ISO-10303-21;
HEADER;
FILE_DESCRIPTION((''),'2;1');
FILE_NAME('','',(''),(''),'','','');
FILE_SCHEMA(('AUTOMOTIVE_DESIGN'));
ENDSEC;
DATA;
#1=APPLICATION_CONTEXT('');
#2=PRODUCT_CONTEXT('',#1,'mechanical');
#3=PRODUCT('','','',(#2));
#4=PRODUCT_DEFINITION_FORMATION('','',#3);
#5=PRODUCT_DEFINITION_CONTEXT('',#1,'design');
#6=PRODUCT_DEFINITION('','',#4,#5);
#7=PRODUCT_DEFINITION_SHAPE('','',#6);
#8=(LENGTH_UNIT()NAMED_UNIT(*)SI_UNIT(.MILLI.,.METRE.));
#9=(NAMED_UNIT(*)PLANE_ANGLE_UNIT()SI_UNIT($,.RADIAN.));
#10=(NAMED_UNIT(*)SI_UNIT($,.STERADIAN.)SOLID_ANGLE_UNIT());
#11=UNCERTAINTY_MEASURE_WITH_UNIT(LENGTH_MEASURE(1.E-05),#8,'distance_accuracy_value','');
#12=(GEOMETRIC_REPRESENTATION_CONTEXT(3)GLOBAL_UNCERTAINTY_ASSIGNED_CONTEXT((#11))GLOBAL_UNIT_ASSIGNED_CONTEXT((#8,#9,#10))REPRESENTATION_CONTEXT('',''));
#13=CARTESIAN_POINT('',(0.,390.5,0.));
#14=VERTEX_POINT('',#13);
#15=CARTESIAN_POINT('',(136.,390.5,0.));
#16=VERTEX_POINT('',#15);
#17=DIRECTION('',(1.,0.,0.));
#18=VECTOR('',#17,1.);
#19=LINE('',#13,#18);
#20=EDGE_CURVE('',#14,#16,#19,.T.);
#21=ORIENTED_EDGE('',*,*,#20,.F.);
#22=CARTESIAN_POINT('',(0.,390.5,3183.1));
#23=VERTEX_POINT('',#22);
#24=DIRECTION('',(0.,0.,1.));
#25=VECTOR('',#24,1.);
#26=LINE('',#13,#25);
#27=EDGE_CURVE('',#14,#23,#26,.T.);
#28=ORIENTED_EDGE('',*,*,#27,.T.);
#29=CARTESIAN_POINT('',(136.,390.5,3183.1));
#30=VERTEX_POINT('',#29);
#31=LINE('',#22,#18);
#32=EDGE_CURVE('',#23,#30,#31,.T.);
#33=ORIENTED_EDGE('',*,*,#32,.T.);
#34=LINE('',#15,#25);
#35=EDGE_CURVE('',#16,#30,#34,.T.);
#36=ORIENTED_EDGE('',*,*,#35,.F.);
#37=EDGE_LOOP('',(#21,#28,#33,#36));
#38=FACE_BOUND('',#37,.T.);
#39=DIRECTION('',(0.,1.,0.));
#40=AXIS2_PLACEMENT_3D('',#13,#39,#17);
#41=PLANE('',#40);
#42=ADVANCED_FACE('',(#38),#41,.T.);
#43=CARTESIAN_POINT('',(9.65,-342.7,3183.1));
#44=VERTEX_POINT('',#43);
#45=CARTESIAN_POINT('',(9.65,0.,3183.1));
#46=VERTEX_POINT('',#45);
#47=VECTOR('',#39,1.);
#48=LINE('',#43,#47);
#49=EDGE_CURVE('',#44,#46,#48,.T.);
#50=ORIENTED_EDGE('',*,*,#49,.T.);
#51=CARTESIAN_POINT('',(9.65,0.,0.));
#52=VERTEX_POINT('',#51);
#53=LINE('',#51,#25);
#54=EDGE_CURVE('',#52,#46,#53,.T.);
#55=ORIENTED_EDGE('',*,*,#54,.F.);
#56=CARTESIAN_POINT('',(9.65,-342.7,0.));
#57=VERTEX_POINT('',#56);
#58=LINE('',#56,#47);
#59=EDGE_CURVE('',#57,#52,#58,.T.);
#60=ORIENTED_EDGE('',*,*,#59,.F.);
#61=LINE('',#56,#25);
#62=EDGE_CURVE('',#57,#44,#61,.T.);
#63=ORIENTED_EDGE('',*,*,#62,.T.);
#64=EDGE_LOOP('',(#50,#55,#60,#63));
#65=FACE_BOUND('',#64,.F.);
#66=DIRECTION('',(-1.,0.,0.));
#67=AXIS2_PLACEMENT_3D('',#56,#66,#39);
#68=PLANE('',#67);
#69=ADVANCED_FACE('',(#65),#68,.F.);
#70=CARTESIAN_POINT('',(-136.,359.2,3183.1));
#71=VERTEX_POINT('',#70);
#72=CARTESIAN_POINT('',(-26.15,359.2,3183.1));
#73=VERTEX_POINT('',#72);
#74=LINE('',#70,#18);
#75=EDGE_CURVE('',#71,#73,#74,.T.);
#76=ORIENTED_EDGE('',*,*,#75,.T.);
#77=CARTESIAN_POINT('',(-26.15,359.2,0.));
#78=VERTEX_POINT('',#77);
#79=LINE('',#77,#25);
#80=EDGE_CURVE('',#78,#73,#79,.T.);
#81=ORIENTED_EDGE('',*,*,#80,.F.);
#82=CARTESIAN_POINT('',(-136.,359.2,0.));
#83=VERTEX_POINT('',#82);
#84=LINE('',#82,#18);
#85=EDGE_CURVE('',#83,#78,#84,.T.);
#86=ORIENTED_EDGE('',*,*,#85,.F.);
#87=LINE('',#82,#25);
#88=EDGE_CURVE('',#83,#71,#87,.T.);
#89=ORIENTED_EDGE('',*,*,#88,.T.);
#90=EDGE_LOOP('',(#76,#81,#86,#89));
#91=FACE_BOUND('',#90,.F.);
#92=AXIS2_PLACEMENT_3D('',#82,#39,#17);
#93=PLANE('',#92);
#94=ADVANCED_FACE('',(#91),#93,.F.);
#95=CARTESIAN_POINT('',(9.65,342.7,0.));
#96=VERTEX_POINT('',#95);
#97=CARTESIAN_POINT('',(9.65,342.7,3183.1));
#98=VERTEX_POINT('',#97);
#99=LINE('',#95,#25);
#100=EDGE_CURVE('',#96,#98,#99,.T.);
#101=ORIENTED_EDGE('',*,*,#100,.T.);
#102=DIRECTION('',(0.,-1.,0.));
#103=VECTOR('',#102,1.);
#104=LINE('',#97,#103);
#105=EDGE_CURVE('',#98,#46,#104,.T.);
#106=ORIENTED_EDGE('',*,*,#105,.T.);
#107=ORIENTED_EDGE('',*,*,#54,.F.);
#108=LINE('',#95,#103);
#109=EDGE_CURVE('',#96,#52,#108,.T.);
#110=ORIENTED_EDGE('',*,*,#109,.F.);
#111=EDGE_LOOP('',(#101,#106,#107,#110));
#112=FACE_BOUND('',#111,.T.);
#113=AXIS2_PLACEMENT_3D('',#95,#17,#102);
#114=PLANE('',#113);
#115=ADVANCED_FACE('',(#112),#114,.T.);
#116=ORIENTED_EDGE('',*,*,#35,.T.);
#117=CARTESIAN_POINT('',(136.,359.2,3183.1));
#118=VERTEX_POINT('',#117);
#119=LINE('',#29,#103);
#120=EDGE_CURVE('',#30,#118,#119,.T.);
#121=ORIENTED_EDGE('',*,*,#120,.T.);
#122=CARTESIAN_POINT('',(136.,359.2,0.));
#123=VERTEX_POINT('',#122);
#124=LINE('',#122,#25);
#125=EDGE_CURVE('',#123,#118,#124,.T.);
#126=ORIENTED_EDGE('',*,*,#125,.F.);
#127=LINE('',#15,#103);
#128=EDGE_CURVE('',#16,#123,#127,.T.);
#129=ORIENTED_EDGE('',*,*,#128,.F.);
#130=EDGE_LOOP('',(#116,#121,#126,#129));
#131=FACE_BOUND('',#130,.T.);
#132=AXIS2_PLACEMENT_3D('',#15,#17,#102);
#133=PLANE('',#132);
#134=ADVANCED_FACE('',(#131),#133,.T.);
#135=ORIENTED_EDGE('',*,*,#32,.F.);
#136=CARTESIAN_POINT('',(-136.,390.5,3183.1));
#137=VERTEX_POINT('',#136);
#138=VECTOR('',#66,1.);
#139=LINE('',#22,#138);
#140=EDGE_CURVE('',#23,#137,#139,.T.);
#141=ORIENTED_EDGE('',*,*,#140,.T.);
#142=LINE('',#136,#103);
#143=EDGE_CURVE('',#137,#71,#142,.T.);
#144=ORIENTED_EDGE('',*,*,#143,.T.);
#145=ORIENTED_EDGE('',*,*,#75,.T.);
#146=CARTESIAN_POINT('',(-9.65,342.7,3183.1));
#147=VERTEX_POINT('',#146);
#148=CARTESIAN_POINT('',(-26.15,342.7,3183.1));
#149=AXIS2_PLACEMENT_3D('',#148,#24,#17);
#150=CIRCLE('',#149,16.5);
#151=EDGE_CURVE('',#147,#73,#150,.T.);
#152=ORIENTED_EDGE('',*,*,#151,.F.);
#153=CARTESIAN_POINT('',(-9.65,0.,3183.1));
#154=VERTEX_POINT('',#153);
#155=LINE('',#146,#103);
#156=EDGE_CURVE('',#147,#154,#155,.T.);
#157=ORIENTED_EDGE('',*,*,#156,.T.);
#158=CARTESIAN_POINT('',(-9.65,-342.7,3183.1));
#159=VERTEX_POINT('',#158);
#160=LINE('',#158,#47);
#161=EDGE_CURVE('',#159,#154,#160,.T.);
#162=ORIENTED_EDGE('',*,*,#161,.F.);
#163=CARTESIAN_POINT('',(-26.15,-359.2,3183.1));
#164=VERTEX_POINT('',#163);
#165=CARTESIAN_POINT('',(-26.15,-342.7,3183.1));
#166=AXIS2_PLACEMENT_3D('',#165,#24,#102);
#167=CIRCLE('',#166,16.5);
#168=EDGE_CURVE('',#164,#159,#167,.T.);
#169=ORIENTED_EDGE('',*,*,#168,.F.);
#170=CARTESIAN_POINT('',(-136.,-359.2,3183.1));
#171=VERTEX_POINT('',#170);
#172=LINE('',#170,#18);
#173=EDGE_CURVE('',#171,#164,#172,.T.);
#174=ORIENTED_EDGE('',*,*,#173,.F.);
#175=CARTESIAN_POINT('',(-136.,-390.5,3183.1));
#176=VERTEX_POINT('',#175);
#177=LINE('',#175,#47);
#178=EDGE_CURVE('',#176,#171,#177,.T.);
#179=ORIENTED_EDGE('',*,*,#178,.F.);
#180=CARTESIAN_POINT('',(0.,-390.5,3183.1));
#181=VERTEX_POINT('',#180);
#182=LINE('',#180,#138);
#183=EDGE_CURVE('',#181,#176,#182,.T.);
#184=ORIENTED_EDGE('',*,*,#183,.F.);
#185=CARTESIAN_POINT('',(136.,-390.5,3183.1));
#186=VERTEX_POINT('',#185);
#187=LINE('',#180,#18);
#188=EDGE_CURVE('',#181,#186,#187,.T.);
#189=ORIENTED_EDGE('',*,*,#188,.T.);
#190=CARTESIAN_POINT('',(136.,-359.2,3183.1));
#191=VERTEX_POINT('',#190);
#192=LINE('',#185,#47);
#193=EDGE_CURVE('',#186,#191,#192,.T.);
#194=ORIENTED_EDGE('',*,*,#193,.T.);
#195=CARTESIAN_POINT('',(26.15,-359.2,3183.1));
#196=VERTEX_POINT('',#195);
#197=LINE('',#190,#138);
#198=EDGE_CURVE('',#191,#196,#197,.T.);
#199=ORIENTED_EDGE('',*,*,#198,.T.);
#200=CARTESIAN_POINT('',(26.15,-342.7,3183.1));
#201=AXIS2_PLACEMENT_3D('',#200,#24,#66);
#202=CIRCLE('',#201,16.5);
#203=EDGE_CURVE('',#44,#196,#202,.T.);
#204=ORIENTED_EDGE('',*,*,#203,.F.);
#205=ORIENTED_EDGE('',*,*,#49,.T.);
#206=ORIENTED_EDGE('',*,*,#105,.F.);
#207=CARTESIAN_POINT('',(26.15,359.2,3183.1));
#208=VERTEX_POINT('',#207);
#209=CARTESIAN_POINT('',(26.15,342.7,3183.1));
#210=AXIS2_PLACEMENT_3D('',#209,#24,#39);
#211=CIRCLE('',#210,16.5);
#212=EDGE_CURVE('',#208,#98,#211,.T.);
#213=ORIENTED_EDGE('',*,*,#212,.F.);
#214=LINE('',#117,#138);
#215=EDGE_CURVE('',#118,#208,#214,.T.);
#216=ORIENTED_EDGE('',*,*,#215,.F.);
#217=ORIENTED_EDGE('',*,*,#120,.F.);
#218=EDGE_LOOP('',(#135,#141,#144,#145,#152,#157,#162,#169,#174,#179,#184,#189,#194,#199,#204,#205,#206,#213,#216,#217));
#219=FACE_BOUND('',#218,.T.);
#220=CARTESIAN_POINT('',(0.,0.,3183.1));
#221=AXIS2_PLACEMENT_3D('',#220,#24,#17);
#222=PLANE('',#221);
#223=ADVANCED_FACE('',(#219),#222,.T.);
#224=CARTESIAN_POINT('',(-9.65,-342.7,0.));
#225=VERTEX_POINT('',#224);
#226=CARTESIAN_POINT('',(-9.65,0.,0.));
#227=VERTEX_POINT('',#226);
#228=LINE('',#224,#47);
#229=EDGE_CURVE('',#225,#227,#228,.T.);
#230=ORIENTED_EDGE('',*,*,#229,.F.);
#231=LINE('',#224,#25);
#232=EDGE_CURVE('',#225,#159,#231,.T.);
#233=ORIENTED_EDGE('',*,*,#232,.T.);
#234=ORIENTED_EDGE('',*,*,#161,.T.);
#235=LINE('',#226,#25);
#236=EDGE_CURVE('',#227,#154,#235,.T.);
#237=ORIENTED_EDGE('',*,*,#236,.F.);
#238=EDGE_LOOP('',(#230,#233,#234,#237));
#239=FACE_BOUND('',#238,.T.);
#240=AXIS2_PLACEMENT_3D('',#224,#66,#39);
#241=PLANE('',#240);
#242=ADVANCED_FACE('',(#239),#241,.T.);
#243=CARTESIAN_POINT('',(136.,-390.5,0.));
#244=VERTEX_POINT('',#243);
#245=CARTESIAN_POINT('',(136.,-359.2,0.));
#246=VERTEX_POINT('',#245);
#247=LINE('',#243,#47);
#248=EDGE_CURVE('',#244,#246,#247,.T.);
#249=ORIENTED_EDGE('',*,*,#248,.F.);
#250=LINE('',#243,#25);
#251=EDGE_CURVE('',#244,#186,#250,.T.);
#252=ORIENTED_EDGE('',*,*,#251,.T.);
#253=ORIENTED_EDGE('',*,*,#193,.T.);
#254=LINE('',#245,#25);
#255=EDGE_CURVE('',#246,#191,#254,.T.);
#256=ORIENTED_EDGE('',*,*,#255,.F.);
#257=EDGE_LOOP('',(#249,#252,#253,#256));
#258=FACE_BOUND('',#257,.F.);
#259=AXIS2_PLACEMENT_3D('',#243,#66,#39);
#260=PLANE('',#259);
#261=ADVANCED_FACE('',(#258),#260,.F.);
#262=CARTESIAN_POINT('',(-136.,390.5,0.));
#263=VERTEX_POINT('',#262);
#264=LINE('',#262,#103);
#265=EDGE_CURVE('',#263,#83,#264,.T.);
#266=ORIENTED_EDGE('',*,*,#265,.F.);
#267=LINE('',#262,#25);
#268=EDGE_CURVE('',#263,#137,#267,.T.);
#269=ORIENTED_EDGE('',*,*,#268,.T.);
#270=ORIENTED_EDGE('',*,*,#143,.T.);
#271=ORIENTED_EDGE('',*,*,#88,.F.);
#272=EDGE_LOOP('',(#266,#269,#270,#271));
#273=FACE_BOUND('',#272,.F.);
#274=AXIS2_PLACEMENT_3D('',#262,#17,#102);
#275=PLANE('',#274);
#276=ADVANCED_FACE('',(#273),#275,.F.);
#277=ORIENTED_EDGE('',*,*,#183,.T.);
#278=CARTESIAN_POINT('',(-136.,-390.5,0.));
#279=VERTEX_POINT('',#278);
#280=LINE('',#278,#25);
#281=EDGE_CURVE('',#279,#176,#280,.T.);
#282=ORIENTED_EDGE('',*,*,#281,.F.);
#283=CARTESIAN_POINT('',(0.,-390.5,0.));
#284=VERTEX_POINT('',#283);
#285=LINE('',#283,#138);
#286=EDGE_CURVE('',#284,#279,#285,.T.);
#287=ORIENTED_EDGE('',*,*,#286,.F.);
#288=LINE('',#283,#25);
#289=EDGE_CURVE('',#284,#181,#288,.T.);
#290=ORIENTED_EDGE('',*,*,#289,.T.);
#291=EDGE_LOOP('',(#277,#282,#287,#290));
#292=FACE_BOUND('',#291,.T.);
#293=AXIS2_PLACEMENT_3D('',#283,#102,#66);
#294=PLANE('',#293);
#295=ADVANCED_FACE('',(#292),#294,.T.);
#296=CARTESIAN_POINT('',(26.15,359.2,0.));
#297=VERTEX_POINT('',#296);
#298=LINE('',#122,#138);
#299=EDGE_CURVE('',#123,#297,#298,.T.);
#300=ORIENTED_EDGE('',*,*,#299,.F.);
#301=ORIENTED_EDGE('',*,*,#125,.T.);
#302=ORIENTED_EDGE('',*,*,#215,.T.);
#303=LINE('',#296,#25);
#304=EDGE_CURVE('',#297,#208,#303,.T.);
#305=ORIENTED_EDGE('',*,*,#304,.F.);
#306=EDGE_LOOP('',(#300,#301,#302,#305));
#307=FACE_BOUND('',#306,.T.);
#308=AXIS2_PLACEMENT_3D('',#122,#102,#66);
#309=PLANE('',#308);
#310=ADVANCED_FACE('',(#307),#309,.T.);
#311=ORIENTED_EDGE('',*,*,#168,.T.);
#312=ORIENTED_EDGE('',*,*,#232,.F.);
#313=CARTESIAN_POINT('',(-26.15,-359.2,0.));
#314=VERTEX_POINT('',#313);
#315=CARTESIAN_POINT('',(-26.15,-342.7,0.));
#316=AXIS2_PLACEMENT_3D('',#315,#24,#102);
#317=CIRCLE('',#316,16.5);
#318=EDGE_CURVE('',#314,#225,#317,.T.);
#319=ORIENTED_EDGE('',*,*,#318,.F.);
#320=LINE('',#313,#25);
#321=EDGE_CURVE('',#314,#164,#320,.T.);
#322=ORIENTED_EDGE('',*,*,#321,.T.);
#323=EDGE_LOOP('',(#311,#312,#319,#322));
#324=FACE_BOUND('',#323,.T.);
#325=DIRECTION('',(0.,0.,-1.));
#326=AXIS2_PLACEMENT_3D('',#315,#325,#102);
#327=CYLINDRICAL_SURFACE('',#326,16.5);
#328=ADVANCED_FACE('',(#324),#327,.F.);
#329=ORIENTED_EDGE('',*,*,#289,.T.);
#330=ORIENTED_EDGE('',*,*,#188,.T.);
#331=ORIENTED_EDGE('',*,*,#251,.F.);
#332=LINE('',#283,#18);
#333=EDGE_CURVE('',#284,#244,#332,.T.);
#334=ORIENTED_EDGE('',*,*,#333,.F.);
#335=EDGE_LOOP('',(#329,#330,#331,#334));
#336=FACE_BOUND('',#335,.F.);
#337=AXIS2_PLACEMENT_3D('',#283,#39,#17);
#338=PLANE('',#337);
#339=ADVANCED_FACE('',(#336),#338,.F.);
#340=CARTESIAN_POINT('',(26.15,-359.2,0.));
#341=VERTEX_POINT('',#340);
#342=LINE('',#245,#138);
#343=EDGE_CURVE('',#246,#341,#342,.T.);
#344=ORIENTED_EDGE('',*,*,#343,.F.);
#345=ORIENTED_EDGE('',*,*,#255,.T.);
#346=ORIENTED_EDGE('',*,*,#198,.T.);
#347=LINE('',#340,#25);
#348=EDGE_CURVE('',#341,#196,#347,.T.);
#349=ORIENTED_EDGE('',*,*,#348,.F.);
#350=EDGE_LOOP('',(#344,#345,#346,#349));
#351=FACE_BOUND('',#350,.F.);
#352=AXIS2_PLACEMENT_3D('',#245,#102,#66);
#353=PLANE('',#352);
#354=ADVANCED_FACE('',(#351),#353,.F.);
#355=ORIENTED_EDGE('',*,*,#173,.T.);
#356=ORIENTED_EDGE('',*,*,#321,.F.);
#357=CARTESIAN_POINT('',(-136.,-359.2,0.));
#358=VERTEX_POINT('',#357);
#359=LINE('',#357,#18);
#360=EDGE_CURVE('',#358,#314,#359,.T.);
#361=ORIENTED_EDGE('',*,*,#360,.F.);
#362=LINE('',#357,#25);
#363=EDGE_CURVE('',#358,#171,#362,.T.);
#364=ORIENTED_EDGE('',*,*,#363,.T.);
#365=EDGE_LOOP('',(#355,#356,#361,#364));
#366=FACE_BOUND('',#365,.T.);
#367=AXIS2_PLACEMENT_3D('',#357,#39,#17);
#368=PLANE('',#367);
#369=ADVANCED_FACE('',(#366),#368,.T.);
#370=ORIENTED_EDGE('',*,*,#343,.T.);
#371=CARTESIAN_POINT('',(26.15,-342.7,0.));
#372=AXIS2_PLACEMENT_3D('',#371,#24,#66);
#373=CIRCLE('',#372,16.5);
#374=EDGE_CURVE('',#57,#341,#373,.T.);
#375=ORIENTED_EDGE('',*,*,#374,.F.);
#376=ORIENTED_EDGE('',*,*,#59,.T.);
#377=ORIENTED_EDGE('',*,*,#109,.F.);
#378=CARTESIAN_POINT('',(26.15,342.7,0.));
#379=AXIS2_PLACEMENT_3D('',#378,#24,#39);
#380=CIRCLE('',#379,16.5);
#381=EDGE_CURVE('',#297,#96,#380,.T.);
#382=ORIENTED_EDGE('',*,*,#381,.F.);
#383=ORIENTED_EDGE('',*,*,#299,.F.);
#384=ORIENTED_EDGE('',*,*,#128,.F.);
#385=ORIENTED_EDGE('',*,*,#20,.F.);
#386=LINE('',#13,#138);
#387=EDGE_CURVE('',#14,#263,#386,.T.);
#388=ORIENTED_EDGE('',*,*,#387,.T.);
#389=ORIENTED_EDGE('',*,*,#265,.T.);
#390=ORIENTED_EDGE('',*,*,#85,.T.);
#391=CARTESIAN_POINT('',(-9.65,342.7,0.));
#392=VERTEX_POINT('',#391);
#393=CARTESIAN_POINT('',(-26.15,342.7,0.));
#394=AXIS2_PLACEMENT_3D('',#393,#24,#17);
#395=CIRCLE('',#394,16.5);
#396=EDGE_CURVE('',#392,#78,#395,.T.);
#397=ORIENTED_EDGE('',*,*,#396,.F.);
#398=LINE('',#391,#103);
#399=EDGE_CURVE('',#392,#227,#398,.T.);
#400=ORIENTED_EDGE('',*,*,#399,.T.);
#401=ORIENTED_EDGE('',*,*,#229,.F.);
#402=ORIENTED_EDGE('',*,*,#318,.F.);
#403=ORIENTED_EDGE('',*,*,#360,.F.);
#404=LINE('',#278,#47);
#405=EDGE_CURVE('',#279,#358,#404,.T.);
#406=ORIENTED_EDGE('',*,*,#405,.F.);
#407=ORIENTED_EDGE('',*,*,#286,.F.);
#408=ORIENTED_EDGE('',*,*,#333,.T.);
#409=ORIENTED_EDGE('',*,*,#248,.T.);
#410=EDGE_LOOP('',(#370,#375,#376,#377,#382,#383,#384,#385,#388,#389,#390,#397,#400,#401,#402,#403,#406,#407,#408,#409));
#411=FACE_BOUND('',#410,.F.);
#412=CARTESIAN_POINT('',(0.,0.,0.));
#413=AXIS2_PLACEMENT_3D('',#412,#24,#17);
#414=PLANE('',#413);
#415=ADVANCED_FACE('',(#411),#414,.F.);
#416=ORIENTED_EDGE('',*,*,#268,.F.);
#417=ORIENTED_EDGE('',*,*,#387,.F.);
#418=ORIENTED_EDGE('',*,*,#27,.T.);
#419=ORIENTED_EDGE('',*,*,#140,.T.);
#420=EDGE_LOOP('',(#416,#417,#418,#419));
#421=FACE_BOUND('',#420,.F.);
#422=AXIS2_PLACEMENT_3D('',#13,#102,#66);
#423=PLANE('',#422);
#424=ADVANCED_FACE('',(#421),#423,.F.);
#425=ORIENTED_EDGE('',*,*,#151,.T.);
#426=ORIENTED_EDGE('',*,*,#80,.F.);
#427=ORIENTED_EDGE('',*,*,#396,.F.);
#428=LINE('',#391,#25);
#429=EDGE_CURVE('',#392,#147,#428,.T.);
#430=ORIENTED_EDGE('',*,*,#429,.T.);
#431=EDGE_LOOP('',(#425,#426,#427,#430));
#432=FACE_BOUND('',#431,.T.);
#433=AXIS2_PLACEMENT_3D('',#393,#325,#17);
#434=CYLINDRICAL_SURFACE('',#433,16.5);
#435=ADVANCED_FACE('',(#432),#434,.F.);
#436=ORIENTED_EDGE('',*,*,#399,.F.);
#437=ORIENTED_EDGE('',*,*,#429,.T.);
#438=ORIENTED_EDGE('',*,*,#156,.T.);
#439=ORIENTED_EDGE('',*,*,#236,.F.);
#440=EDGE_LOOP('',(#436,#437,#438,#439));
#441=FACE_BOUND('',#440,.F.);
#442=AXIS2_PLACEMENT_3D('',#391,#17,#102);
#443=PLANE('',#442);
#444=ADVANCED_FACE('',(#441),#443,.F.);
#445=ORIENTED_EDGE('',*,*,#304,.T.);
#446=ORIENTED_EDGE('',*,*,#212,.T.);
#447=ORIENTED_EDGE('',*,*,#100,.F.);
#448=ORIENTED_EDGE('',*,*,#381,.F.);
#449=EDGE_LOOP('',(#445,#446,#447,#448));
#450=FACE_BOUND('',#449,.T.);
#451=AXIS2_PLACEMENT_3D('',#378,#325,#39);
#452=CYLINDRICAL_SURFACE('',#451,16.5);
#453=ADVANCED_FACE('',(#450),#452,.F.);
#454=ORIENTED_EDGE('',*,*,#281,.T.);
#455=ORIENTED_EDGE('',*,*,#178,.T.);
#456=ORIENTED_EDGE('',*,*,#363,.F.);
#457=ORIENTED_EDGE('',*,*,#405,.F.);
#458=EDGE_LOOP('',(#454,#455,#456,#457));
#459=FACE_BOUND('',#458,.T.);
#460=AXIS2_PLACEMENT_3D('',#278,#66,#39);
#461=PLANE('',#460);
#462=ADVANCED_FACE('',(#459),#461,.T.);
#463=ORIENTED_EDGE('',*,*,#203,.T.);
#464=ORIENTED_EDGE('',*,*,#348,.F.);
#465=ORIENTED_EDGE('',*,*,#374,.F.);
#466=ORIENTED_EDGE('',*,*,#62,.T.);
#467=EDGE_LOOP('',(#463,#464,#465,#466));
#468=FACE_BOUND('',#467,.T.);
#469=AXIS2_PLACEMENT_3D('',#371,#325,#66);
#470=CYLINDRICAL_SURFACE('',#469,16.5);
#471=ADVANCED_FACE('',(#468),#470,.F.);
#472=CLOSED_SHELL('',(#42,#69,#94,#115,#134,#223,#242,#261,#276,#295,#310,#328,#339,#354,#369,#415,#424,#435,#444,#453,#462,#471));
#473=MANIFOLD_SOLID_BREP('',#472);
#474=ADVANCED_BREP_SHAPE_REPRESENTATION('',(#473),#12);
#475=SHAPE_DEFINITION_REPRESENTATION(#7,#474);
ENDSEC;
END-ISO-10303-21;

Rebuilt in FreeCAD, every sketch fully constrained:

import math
import FreeCAD as App
import Part
import Sketcher

doc = App.newDocument("Part")
body = doc.addObject("PartDesign::Body", "Body")

# Sketch on XY plane
sketch1 = body.newObject("Sketcher::SketchObject", "Sketch")
sketch1.AttachmentSupport = (doc.getObject("XY_Plane"), [""])
sketch1.MapMode = "FlatFace"
sketch1.addGeometry(Part.LineSegment(App.Vector(-136, -359, 0), App.Vector(-136, -390, 0)), False)
sketch1.addGeometry(Part.LineSegment(App.Vector(-136, -390, 0), App.Vector(136, -390, 0)), False)
sketch1.addGeometry(Part.LineSegment(App.Vector(136, -390, 0), App.Vector(136, -359, 0)), False)
sketch1.addGeometry(Part.LineSegment(App.Vector(136, -359, 0), App.Vector(26, -359, 0)), False)
sketch1.addGeometry(Part.ArcOfCircle(Part.Circle(App.Vector(26, -343, 0), App.Vector(0, 0, 1), 16), math.radians(180), math.radians(270)), False)
sketch1.addGeometry(Part.LineSegment(App.Vector(10, -343, 0), App.Vector(10, 343, 0)), False)
sketch1.addGeometry(Part.ArcOfCircle(Part.Circle(App.Vector(26, 343, 0), App.Vector(0, 0, 1), 16), math.radians(90), math.radians(180)), False)
sketch1.addGeometry(Part.LineSegment(App.Vector(26, 359, 0), App.Vector(136, 359, 0)), False)
sketch1.addGeometry(Part.LineSegment(App.Vector(136, 359, 0), App.Vector(136, 390, 0)), False)
sketch1.addGeometry(Part.LineSegment(App.Vector(136, 390, 0), App.Vector(-136, 390, 0)), False)
sketch1.addGeometry(Part.LineSegment(App.Vector(-136, 390, 0), App.Vector(-136, 359, 0)), False)
sketch1.addGeometry(Part.LineSegment(App.Vector(-136, 359, 0), App.Vector(-26, 359, 0)), False)
sketch1.addGeometry(Part.ArcOfCircle(Part.Circle(App.Vector(-26, 343, 0), App.Vector(0, 0, 1), 16), math.radians(0), math.radians(90)), False)
sketch1.addGeometry(Part.LineSegment(App.Vector(-10, 343, 0), App.Vector(-10, -343, 0)), False)
sketch1.addGeometry(Part.ArcOfCircle(Part.Circle(App.Vector(-26, -343, 0), App.Vector(0, 0, 1), 16), math.radians(-90), math.radians(0)), False)
sketch1.addGeometry(Part.LineSegment(App.Vector(-26, -359, 0), App.Vector(-136, -359, 0)), False)
sketch1.addConstraint(Sketcher.Constraint("Coincident", 0, 2, 1, 1))
sketch1.addConstraint(Sketcher.Constraint("Coincident", 1, 2, 2, 1))
sketch1.addConstraint(Sketcher.Constraint("Coincident", 2, 2, 3, 1))
sketch1.addConstraint(Sketcher.Constraint("Tangent", 3, 2, 4, 2))
sketch1.addConstraint(Sketcher.Constraint("Tangent", 4, 1, 5, 1))
sketch1.addConstraint(Sketcher.Constraint("Tangent", 5, 2, 6, 2))
sketch1.addConstraint(Sketcher.Constraint("Tangent", 6, 1, 7, 1))
sketch1.addConstraint(Sketcher.Constraint("Coincident", 7, 2, 8, 1))
sketch1.addConstraint(Sketcher.Constraint("Coincident", 8, 2, 9, 1))
sketch1.addConstraint(Sketcher.Constraint("Coincident", 9, 2, 10, 1))
sketch1.addConstraint(Sketcher.Constraint("Coincident", 10, 2, 11, 1))
sketch1.addConstraint(Sketcher.Constraint("Tangent", 11, 2, 12, 2))
sketch1.addConstraint(Sketcher.Constraint("Tangent", 12, 1, 13, 1))
sketch1.addConstraint(Sketcher.Constraint("Tangent", 13, 2, 14, 2))
sketch1.addConstraint(Sketcher.Constraint("Tangent", 14, 1, 15, 1))
sketch1.addConstraint(Sketcher.Constraint("Coincident", 15, 2, 0, 1))
sketch1.addConstraint(Sketcher.Constraint("Vertical", 0))
sketch1.addConstraint(Sketcher.Constraint("Horizontal", 1))
sketch1.addConstraint(Sketcher.Constraint("Vertical", 2))
sketch1.addConstraint(Sketcher.Constraint("Horizontal", 3))
sketch1.addConstraint(Sketcher.Constraint("Vertical", 5))
sketch1.addConstraint(Sketcher.Constraint("Horizontal", 7))
sketch1.addConstraint(Sketcher.Constraint("Vertical", 8))
sketch1.addConstraint(Sketcher.Constraint("Horizontal", 9))
sketch1.addConstraint(Sketcher.Constraint("Vertical", 10))
sketch1.addConstraint(Sketcher.Constraint("Horizontal", 11))
sketch1.addConstraint(Sketcher.Constraint("Vertical", 13))
sketch1.addConstraint(Sketcher.Constraint("Horizontal", 15))
sketch1.addConstraint(Sketcher.Constraint("Equal", 4, 6))
sketch1.addConstraint(Sketcher.Constraint("Equal", 6, 12))
sketch1.addConstraint(Sketcher.Constraint("Equal", 12, 14))
sketch1.addConstraint(Sketcher.Constraint("Symmetric", 4, 3, 12, 3, -1, 1))
sketch1.addConstraint(Sketcher.Constraint("Symmetric", 0, 2, 8, 2, -1, 1))
sketch1.addConstraint(Sketcher.Constraint("Symmetric", 7, 2, 10, 2, -2))
sketch1.addConstraint(Sketcher.Constraint("Symmetric", 2, 2, 15, 2, -2))
sketch1.addConstraint(Sketcher.Constraint("Radius", 4, 16.5))
sketch1.addConstraint(Sketcher.Constraint("DistanceY", 0, 2, 0, 1, 31.3))
sketch1.addConstraint(Sketcher.Constraint("DistanceX", 0, 2, -1, 1, 136.0))
sketch1.addConstraint(Sketcher.Constraint("DistanceY", 0, 2, -1, 1, 390.5))
sketch1.addConstraint(Sketcher.Constraint("DistanceX", -1, 1, 4, 1, 9.65))
pad1 = body.newObject("PartDesign::Pad", "Pad")
pad1.Profile = sketch1
pad1.Length = 3183.1

doc.recompute()
